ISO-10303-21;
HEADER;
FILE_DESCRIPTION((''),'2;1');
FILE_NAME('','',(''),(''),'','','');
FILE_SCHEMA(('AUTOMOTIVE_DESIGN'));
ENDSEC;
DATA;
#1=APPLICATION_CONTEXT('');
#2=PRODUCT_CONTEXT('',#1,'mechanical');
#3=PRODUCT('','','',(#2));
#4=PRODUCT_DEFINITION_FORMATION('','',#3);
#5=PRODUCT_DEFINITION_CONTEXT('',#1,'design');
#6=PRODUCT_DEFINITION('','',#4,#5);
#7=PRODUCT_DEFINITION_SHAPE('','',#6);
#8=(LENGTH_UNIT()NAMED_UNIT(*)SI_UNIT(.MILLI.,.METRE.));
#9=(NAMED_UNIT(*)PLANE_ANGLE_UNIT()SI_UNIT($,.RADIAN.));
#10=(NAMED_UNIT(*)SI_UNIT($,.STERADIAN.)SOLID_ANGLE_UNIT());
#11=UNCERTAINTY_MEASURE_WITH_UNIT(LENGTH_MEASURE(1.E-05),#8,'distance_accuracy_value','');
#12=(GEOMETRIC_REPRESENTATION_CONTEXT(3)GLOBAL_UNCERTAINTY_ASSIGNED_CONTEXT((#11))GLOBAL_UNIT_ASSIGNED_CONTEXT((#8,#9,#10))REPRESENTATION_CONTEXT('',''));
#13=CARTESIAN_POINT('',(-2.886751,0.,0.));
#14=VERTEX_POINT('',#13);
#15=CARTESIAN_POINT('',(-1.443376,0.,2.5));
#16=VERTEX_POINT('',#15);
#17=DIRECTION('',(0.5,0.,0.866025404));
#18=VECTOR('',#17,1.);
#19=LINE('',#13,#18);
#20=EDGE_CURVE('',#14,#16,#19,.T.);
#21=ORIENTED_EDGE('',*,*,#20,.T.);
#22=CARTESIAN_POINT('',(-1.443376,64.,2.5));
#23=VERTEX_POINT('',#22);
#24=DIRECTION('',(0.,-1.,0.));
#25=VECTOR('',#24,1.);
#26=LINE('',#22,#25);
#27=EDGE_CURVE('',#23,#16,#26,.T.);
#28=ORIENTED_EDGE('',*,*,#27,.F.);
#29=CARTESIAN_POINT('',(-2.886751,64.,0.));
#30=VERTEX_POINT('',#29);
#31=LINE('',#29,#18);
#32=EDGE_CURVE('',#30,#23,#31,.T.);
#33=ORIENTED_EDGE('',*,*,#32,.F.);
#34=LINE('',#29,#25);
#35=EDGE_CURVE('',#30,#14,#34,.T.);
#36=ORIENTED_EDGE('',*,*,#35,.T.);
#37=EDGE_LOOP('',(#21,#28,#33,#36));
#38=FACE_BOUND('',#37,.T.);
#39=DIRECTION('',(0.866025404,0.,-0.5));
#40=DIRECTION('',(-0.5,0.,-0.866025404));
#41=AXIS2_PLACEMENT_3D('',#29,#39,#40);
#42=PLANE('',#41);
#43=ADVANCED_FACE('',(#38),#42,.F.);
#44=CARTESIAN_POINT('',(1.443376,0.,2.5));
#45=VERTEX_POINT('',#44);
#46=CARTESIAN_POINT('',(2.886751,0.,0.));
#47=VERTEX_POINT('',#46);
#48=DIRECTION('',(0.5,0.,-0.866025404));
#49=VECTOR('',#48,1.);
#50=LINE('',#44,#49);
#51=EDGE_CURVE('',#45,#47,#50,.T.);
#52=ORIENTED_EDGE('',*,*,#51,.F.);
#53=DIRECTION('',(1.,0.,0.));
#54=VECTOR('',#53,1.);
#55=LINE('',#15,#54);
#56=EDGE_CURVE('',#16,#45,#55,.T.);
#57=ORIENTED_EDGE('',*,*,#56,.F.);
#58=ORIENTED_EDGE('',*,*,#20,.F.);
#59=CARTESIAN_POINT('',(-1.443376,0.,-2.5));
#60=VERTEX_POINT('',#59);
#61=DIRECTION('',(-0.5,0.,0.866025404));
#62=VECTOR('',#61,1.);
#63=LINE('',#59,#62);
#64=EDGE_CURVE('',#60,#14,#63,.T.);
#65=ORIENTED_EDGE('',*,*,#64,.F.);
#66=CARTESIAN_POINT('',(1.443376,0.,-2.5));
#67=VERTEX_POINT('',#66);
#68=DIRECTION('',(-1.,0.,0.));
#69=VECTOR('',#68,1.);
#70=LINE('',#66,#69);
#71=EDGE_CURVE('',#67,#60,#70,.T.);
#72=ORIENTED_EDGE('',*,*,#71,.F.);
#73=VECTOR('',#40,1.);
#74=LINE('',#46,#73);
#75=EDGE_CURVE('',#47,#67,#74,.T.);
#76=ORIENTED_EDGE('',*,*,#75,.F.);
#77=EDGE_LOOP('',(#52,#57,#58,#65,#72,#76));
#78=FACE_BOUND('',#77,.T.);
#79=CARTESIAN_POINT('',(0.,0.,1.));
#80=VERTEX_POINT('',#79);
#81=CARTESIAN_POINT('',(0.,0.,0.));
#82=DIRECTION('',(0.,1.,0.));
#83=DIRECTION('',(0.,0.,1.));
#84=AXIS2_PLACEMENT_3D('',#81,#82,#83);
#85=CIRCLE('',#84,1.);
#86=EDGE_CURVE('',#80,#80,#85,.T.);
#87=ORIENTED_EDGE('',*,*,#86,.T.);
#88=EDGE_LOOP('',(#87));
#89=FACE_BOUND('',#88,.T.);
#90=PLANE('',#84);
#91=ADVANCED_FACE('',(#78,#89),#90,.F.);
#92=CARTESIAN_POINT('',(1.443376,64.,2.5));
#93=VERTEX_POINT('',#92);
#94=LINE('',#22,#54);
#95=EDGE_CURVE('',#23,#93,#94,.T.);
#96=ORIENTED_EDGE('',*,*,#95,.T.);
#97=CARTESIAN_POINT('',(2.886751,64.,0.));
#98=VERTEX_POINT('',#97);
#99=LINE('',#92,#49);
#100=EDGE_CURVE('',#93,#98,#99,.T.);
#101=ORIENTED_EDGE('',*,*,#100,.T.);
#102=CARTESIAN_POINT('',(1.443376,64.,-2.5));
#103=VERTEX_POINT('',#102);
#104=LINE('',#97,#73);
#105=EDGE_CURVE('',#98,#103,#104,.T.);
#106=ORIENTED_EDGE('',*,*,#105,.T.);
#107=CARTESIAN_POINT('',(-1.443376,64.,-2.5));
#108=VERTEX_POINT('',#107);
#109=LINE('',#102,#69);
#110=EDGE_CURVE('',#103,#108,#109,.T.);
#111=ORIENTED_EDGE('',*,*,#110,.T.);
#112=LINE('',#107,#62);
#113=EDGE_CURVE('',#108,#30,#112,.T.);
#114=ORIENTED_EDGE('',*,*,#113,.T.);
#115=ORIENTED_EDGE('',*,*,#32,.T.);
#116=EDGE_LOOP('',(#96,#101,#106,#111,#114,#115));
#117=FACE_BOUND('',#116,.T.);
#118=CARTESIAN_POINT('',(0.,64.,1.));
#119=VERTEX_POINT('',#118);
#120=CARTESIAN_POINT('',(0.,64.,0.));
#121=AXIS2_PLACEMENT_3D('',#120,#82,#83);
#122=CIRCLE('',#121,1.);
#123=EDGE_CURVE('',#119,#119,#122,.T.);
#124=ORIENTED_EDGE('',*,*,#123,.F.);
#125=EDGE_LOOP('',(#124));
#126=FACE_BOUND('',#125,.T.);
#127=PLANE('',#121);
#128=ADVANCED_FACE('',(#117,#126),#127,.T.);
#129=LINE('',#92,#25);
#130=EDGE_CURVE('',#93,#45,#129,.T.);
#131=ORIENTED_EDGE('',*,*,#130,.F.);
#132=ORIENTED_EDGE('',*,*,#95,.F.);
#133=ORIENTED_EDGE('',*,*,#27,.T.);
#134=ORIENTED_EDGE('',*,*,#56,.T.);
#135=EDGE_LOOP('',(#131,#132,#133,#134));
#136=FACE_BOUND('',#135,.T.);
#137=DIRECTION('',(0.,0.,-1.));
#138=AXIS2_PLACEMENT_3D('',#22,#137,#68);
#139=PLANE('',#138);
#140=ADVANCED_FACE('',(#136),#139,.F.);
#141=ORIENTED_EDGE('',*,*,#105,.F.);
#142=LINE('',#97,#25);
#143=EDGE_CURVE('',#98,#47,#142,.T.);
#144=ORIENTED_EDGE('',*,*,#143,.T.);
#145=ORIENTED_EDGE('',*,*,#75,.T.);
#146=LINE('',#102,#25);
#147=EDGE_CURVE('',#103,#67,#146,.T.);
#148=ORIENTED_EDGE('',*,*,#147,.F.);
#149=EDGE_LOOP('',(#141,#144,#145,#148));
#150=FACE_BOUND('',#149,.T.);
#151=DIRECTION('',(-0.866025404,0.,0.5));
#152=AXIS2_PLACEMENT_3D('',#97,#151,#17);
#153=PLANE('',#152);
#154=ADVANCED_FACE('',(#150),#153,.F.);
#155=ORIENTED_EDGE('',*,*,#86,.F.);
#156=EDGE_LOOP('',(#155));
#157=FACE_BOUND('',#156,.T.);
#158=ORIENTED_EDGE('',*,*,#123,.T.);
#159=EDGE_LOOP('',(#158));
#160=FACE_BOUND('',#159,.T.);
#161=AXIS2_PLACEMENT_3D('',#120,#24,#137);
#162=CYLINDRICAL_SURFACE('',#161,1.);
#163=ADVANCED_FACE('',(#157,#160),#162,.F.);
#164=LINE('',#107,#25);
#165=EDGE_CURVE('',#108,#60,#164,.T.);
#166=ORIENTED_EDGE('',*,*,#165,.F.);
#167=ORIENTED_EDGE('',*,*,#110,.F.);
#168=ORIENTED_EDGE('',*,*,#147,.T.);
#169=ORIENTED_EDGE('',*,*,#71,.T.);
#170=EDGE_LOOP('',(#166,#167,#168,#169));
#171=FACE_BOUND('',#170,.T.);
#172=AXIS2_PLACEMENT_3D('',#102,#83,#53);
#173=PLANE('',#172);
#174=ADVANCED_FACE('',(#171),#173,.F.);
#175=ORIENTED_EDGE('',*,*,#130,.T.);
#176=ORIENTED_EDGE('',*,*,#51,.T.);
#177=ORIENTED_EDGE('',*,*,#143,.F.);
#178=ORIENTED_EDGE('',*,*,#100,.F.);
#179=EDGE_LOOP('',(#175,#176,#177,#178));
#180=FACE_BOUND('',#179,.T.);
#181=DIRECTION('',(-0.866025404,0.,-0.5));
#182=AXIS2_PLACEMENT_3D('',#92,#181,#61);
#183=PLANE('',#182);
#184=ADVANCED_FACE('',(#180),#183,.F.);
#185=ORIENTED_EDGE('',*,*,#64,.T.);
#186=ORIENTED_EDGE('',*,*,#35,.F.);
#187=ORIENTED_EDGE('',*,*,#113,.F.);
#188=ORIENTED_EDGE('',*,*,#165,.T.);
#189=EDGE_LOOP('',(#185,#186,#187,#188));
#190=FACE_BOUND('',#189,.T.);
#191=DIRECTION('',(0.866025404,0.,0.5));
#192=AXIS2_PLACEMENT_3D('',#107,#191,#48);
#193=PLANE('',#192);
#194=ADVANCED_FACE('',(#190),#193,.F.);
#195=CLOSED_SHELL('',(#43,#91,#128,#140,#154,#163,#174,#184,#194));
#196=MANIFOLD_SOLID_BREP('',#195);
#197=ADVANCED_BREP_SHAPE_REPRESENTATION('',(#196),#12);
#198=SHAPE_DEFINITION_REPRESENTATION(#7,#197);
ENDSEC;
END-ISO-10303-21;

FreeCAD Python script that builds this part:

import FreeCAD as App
import Part
import Sketcher

V = App.Vector
Q = App.Units.Quantity


def add_polygon(sketch, points):
    """Adds a closed chain of lines whose ends are joined by coincident constraints."""
    first, n = sketch.GeometryCount, len(points)
    for a, b in zip(points, points[1:] + points[:1]):
        sketch.addGeometry(Part.LineSegment(App.Vector(*a, 0), App.Vector(*b, 0)), False)
    for i in range(n):
        sketch.addConstraint(Sketcher.Constraint("Coincident", first + i, 2, first + (i + 1) % n, 1))

doc = App.newDocument("Part")
params = doc.addObject("Spreadsheet::Sheet", "Params")
for row, (alias, value) in enumerate([
    ("sketch1_diameter", "2 mm"),
    ("pad1_length", "64 mm"),
], start=1):
    params.set(f"A{row}", alias)
    params.set(f"B{row}", "=" + value)
    params.setAlias(f"B{row}", alias)

body = doc.addObject("PartDesign::Body", "Body")

sketch1 = body.newObject("Sketcher::SketchObject", "Sketch")
sketch1.AttachmentSupport = (doc.getObject("XZ_Plane"), [""])
sketch1.MapMode = "FlatFace"
add_polygon(sketch1, [(2.886751, 0), (1.443376, -2.5), (-1.443376, -2.5), (-2.886751, 0), (-1.443376, 2.5), (1.443376, 2.5)])
sketch1.addGeometry(Part.Circle(V(0, 0, 0), V(0, 0, 1), 1), False)
sketch1.addConstraint([
    Sketcher.Constraint("Horizontal", 1),
    Sketcher.Constraint("Horizontal", 4),
    Sketcher.Constraint("Coincident", 6, 3, -1, 1),
    Sketcher.Constraint("Symmetric", 0, 2, 3, 2, -1, 1),
    Sketcher.Constraint("Symmetric", 2, 2, 5, 2, -1, 1),
    Sketcher.Constraint("PointOnObject", 2, 2, -1),
    Sketcher.Constraint("Parallel", 2, 5),
    Sketcher.Constraint("Vertical", 1, 2, 3, 2),
    Sketcher.Constraint("Diameter", 6, Q("2 mm")),
    Sketcher.Constraint("Angle", 0, Q("-120 deg")),
    Sketcher.Constraint("DistanceY", 1, 2, 3, 2, Q("5 mm")),
    Sketcher.Constraint("DistanceX", 1, 2, 1, 1, Q("2.886751 mm")),
])
sketch1.setExpression("Constraints[14]", "Params.sketch1_diameter")
pad1 = body.newObject("PartDesign::Pad", "Pad")
pad1.Profile = sketch1
pad1.setExpression("Length", "Params.pad1_length")
pad1.Reversed = True

doc.recompute()
